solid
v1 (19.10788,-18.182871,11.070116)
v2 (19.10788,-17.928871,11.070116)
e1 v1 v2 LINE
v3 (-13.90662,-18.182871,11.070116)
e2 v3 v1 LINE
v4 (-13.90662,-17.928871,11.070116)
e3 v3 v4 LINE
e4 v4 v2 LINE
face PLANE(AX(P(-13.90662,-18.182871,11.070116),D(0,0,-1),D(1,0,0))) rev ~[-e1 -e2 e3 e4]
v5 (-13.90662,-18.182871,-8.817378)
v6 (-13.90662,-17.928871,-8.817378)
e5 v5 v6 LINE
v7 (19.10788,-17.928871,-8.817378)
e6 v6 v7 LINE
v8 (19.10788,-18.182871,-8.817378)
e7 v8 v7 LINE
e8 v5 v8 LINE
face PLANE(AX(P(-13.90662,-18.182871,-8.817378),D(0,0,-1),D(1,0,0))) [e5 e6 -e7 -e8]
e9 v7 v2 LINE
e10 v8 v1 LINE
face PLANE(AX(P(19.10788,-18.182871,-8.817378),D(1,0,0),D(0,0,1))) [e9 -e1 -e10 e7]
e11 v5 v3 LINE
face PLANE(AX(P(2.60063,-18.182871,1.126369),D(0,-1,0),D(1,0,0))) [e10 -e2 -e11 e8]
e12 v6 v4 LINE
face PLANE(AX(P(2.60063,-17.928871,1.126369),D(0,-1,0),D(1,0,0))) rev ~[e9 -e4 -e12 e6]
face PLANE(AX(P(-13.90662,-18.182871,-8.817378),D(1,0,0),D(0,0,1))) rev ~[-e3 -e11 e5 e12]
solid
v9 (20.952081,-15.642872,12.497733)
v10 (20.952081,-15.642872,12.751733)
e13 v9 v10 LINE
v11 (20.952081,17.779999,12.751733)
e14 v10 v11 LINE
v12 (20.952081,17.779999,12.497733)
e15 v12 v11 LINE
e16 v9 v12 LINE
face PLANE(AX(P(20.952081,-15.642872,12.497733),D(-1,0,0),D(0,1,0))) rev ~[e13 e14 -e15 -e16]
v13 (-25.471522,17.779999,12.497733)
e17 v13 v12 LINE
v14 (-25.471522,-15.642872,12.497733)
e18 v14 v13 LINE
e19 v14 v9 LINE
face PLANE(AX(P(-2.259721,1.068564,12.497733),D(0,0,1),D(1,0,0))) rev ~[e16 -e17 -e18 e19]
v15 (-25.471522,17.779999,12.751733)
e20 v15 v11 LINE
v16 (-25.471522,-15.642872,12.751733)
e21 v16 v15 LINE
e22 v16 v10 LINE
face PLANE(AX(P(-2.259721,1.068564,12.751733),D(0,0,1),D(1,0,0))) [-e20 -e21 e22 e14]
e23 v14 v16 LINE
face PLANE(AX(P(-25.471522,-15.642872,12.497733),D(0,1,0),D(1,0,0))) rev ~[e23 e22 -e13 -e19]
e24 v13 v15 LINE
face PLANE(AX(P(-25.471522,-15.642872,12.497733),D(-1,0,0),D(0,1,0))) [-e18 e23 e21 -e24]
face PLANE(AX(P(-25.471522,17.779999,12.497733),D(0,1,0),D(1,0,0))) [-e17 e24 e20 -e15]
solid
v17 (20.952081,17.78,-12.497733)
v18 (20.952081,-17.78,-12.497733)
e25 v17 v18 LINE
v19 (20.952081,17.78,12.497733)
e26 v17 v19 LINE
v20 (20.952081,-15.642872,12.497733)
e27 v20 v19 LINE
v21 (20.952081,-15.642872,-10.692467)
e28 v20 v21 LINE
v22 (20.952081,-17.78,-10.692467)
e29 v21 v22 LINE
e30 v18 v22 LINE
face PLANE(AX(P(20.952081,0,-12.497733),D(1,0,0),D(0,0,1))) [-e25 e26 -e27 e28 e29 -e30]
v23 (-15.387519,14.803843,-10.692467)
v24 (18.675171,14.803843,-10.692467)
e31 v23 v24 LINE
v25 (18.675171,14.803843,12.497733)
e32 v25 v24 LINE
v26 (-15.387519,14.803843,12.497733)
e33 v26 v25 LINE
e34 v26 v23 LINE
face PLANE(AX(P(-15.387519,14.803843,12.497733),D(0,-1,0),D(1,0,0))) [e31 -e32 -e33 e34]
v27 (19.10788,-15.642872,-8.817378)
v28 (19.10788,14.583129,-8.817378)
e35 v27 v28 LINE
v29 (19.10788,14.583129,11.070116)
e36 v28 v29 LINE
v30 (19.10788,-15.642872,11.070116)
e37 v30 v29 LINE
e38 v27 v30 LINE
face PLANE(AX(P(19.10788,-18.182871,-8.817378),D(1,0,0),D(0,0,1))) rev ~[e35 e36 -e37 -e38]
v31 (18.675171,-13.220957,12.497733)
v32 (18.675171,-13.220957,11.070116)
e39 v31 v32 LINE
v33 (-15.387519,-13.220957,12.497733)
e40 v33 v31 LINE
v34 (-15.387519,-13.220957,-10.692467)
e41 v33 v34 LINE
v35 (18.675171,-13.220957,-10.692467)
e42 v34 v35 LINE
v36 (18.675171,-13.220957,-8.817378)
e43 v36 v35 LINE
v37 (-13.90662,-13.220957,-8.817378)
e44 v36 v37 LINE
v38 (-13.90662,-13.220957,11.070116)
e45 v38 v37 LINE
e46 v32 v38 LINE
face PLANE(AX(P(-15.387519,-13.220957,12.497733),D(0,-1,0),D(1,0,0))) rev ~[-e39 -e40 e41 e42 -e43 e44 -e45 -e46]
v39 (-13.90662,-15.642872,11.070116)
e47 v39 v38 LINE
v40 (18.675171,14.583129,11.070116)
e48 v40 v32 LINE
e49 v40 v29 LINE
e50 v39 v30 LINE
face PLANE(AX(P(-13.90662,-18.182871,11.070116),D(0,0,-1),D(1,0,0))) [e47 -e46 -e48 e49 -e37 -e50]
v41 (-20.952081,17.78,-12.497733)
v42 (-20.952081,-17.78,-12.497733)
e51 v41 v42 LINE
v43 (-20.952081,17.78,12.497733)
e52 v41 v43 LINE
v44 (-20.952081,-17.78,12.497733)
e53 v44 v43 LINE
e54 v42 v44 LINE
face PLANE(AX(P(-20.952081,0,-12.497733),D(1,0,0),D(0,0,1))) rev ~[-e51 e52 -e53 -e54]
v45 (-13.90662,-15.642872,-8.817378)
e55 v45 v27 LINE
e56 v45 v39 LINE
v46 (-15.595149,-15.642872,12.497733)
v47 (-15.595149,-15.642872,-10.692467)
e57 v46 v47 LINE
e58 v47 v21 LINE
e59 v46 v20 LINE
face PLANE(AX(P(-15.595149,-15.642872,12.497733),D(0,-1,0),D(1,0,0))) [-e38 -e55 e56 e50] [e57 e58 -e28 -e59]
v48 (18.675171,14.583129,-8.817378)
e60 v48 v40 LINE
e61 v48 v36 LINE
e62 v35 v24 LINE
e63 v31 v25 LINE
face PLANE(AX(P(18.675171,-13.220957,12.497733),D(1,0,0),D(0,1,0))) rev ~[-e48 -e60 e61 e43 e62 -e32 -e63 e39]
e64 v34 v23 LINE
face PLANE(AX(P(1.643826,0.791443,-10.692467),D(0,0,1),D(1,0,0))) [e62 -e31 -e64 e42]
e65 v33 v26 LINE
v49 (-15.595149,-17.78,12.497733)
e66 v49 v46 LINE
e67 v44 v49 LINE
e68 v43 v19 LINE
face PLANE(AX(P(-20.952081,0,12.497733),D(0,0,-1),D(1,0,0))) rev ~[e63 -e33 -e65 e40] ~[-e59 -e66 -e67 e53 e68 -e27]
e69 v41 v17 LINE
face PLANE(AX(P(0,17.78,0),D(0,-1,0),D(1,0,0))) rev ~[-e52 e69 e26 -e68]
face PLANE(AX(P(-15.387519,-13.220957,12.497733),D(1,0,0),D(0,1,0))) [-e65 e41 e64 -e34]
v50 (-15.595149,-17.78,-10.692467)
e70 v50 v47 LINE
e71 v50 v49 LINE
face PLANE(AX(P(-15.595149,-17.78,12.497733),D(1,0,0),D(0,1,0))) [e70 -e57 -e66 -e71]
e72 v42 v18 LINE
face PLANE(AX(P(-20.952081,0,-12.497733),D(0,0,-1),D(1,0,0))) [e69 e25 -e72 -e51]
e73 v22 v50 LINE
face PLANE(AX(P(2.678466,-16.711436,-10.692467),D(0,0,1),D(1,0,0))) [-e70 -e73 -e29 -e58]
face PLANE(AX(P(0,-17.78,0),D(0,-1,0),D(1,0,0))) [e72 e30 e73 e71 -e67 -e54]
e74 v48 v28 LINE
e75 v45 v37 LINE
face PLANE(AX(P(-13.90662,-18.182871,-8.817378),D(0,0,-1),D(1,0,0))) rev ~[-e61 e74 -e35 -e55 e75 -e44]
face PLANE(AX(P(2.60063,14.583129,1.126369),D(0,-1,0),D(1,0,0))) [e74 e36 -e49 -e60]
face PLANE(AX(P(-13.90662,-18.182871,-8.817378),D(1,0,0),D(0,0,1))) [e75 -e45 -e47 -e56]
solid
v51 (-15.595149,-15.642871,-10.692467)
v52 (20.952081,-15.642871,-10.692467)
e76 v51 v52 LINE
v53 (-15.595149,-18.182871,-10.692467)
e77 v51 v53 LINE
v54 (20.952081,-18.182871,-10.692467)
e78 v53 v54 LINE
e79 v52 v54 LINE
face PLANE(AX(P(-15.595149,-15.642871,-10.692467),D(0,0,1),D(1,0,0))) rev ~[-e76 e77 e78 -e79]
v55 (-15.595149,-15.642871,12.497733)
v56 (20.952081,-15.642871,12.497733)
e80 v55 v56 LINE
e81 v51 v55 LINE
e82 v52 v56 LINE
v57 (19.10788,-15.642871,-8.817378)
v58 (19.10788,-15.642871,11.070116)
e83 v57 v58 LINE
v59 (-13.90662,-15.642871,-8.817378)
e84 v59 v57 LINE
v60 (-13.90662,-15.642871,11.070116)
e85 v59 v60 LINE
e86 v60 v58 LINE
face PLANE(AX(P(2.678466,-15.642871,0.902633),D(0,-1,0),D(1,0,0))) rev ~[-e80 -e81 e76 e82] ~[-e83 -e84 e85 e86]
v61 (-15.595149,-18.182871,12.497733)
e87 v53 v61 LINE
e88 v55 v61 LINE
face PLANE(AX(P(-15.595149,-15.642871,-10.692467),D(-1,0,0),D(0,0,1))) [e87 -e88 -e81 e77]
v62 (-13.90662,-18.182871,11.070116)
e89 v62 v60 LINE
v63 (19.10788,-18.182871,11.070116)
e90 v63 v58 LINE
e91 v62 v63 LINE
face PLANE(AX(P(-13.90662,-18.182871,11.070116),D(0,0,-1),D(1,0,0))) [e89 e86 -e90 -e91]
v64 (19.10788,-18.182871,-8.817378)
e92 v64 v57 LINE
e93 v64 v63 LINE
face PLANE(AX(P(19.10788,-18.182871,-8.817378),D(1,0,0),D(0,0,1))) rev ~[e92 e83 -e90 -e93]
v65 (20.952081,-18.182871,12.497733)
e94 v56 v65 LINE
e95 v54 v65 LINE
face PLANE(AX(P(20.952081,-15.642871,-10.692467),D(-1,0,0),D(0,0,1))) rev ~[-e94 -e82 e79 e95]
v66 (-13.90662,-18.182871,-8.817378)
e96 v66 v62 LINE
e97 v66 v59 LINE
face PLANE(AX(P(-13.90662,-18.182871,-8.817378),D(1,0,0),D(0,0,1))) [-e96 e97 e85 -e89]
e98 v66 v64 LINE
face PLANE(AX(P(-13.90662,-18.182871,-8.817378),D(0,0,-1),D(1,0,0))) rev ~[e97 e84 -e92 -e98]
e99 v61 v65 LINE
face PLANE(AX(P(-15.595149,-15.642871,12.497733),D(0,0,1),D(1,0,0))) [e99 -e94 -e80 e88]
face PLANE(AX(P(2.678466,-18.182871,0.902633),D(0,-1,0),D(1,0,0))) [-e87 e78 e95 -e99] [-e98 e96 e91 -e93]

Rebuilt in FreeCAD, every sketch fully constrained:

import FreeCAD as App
import Part
import Sketcher
from FreeCAD import Vector
Q = App.Units.Quantity


def add_polygon(sketch, points):
    """Adds a closed chain of lines whose ends are joined by coincident constraints."""
    first, n = sketch.GeometryCount, len(points)
    for a, b in zip(points, points[1:] + points[:1]):
        sketch.addGeometry(Part.LineSegment(App.Vector(*a, 0), App.Vector(*b, 0)), False)
    for i in range(n):
        sketch.addConstraint(Sketcher.Constraint("Coincident", first + i, 2, first + (i + 1) % n, 1))

doc = App.newDocument("Part")
params = doc.addObject("Spreadsheet::Sheet", "Params")
for row, (alias, value) in enumerate([
    ("pad1_length", "0.7 in"),
    ("pad1_length2", "0.7 in"),
    ("pocket1_length", "0.913 in"),
    ("sketch3_height", "0.913 in"),
    ("pad2_length", "0.1 in"),
    ("pad3_length", "1.29 in"),
    ("pocket2_length", "0.913 in"),
    ("pad4_length", "0.01 in"),
    ("pad5_length", "0.01 in"),
], start=1):
    params.set(f"A{row}", alias)
    params.set(f"B{row}", "=" + value)
    params.setAlias(f"B{row}", alias)

body = doc.addObject("PartDesign::Body", "Body")

sketch1 = body.newObject("Sketcher::SketchObject", "Sketch")
sketch1.AttachmentSupport = (doc.getObject("XZ_Plane"), [""])
sketch1.MapMode = "FlatFace"
add_polygon(sketch1, [(-21, 12), (-21, -12), (21, -12), (21, 12)])
sketch1.addConstraint([
    Sketcher.Constraint("Vertical", 0),
    Sketcher.Constraint("Horizontal", 1),
    Sketcher.Constraint("Vertical", 2),
    Sketcher.Constraint("Horizontal", 3),
    Sketcher.Constraint("Symmetric", 0, 2, 2, 2, -1, 1),
    Sketcher.Constraint("DistanceX", 1, 1, 1, 2, 41.904162),
    Sketcher.Constraint("DistanceY", 0, 2, 0, 1, 24.995466),
])
pad1 = body.newObject("PartDesign::Pad", "Pad")
pad1.Profile = sketch1
pad1.Type = "TwoLengths"
pad1.setExpression("Length", "Params.pad1_length")
pad1.setExpression("Length2", "Params.pad1_length2")

sketch2 = body.newObject("Sketcher::SketchObject", "Sketch001")
sketch2.AttachmentSupport = (doc.getObject("XY_Plane"), [""])
sketch2.MapMode = "FlatFace"
sketch2.AttachmentOffset = App.Placement(Vector(0, 0, 12.497733), App.Rotation())
add_polygon(sketch2, [(-15.6, -15.6), (-15.6, -17.8), (21, -17.8), (21, -15.6)])
sketch2.addConstraint([
    Sketcher.Constraint("Vertical", 0),
    Sketcher.Constraint("Horizontal", 1),
    Sketcher.Constraint("Vertical", 2),
    Sketcher.Constraint("Horizontal", 3),
    Sketcher.Constraint("DistanceY", 0, 2, -1, 1, Q("0.7 in")),
    Sketcher.Constraint("DistanceX", 1, 1, 1, 2, 36.547231),
    Sketcher.Constraint("DistanceY", 0, 2, 0, 1, 2.137129),
    Sketcher.Constraint("DistanceX", 0, 2, -1, 1, 15.595149),
])
pocket1 = body.newObject("PartDesign::Pocket", "Pocket")
pocket1.Profile = sketch2
pocket1.setExpression("Length", "Params.pocket1_length")
body2 = doc.addObject("PartDesign::Body", "Body001")

sketch3 = body2.newObject("Sketcher::SketchObject", "Sketch002")
sketch3.AttachmentSupport = (doc.getObject("XZ_Plane001"), [""])
sketch3.MapMode = "FlatFace"
sketch3.AttachmentOffset = App.Placement(Vector(0, 0, 15.642871), App.Rotation())
add_polygon(sketch3, [(-16, 12), (-16, -11), (21, -11), (21, 12)])
sketch3.addConstraint([
    Sketcher.Constraint("Vertical", 0),
    Sketcher.Constraint("Horizontal", 1),
    Sketcher.Constraint("Vertical", 2),
    Sketcher.Constraint("Horizontal", 3),
    Sketcher.Constraint("DistanceY", 0, 2, 0, 1, Q("0.913 in")),
    Sketcher.Constraint("DistanceX", 1, 1, 1, 2, 36.547231),
    Sketcher.Constraint("DistanceX", 0, 2, -1, 1, 15.595149),
    Sketcher.Constraint("DistanceY", 0, 2, -1, 1, 10.692467),
])
sketch3.setExpression("Constraints[8]", "Params.sketch3_height")
pad2 = body2.newObject("PartDesign::Pad", "Pad001")
pad2.Profile = sketch3
pad2.setExpression("Length", "Params.pad2_length")
body3 = doc.addObject("PartDesign::Body", "Body002")

sketch4 = body3.newObject("Sketcher::SketchObject", "Sketch003")
sketch4.AttachmentSupport = (doc.getObject("XZ_Plane002"), [""])
sketch4.MapMode = "FlatFace"
sketch4.AttachmentOffset = App.Placement(Vector(0, 0, 18.182871), App.Rotation())
add_polygon(sketch4, [(-14, 11), (-14, -9), (19, -9), (19, 11)])
sketch4.addConstraint([
    Sketcher.Constraint("Vertical", 0),
    Sketcher.Constraint("Horizontal", 1),
    Sketcher.Constraint("Vertical", 2),
    Sketcher.Constraint("Horizontal", 3),
    Sketcher.Constraint("DistanceX", 1, 1, 1, 2, 33.0145),
    Sketcher.Constraint("DistanceY", 0, 2, 0, 1, 19.887494),
    Sketcher.Constraint("DistanceX", 0, 2, -1, 1, 13.90662),
    Sketcher.Constraint("DistanceY", 0, 2, -1, 1, 8.817378),
])
pad3 = body3.newObject("PartDesign::Pad", "Pad002")
pad3.Profile = sketch4
pad3.setExpression("Length", "Params.pad3_length")
pad3.Reversed = True
doc.recompute()

body4 = doc.addObject("PartDesign::Body", "Body003")
body4.BaseFeature = body3
boolean = body.newObject("PartDesign::Boolean", "Boolean")
boolean.Type = "Cut"
boolean.addObjects([body4])
doc.recompute()

sketch5 = body.newObject("Sketcher::SketchObject", "Sketch004")
sketch5.AttachmentSupport = (doc.getObject("XY_Plane"), [""])
sketch5.MapMode = "FlatFace"
sketch5.AttachmentOffset = App.Placement(Vector(0, 0, 12.497733), App.Rotation())
add_polygon(sketch5, [(-15, 15), (-15, -13), (19, -13), (19, 15)])
sketch5.addConstraint([
    Sketcher.Constraint("Vertical", 0),
    Sketcher.Constraint("Horizontal", 1),
    Sketcher.Constraint("Vertical", 2),
    Sketcher.Constraint("Horizontal", 3),
    Sketcher.Constraint("DistanceY", 0, 2, 0, 1, 28.0248),
    Sketcher.Constraint("DistanceX", 1, 1, 1, 2, 34.06269),
    Sketcher.Constraint("DistanceX", 0, 2, -1, 1, 15.387519),
    Sketcher.Constraint("DistanceY", 0, 2, -1, 1, 13.220957),
])
pocket2 = body.newObject("PartDesign::Pocket", "Pocket001")
pocket2.Profile = sketch5
pocket2.setExpression("Length", "Params.pocket2_length")
doc.recompute()

boolean2 = body2.newObject("PartDesign::Boolean", "Boolean001")
boolean2.Type = "Cut"
boolean2.addObjects([body3])
body5 = doc.addObject("PartDesign::Body", "Body004")

sketch6 = body5.newObject("Sketcher::SketchObject", "Sketch005")
sketch6.AttachmentSupport = (doc.getObject("XZ_Plane004"), [""])
sketch6.MapMode = "FlatFace"
sketch6.AttachmentOffset = App.Placement(Vector(0, 0, 18.182871), App.Rotation())
add_polygon(sketch6, [(-14, 11), (-14, -9), (19, -9), (19, 11)])
sketch6.addConstraint([
    Sketcher.Constraint("Vertical", 0),
    Sketcher.Constraint("Horizontal", 1),
    Sketcher.Constraint("Vertical", 2),
    Sketcher.Constraint("Horizontal", 3),
    Sketcher.Constraint("DistanceX", 1, 1, 1, 2, 33.0145),
    Sketcher.Constraint("DistanceY", 0, 2, 0, 1, 19.887494),
    Sketcher.Constraint("DistanceX", 0, 2, -1, 1, 13.90662),
    Sketcher.Constraint("DistanceY", 0, 2, -1, 1, 8.817378),
])
pad4 = body5.newObject("PartDesign::Pad", "Pad003")
pad4.Profile = sketch6
pad4.setExpression("Length", "Params.pad4_length")
pad4.Reversed = True
body6 = doc.addObject("PartDesign::Body", "Body005")

sketch7 = body6.newObject("Sketcher::SketchObject", "Sketch006")
sketch7.AttachmentSupport = (doc.getObject("XY_Plane005"), [""])
sketch7.MapMode = "FlatFace"
sketch7.AttachmentOffset = App.Placement(Vector(0, 0, 12.497733), App.Rotation())
add_polygon(sketch7, [(-25, 18), (-25, -16), (21, -16), (21, 18)])
sketch7.addConstraint([
    Sketcher.Constraint("Vertical", 0),
    Sketcher.Constraint("Horizontal", 1),
    Sketcher.Constraint("Vertical", 2),
    Sketcher.Constraint("Horizontal", 3),
    Sketcher.Constraint("DistanceY", -1, 1, 2, 2, Q("0.7 in")),
    Sketcher.Constraint("DistanceY", 0, 2, 0, 1, 33.422871),
    Sketcher.Constraint("DistanceX", 1, 1, 1, 2, 46.423603),
    Sketcher.Constraint("DistanceX", -1, 1, 1, 2, 20.952081),
])
pad5 = body6.newObject("PartDesign::Pad", "Pad004")
pad5.Profile = sketch7
pad5.setExpression("Length", "Params.pad5_length")

doc.recompute()
